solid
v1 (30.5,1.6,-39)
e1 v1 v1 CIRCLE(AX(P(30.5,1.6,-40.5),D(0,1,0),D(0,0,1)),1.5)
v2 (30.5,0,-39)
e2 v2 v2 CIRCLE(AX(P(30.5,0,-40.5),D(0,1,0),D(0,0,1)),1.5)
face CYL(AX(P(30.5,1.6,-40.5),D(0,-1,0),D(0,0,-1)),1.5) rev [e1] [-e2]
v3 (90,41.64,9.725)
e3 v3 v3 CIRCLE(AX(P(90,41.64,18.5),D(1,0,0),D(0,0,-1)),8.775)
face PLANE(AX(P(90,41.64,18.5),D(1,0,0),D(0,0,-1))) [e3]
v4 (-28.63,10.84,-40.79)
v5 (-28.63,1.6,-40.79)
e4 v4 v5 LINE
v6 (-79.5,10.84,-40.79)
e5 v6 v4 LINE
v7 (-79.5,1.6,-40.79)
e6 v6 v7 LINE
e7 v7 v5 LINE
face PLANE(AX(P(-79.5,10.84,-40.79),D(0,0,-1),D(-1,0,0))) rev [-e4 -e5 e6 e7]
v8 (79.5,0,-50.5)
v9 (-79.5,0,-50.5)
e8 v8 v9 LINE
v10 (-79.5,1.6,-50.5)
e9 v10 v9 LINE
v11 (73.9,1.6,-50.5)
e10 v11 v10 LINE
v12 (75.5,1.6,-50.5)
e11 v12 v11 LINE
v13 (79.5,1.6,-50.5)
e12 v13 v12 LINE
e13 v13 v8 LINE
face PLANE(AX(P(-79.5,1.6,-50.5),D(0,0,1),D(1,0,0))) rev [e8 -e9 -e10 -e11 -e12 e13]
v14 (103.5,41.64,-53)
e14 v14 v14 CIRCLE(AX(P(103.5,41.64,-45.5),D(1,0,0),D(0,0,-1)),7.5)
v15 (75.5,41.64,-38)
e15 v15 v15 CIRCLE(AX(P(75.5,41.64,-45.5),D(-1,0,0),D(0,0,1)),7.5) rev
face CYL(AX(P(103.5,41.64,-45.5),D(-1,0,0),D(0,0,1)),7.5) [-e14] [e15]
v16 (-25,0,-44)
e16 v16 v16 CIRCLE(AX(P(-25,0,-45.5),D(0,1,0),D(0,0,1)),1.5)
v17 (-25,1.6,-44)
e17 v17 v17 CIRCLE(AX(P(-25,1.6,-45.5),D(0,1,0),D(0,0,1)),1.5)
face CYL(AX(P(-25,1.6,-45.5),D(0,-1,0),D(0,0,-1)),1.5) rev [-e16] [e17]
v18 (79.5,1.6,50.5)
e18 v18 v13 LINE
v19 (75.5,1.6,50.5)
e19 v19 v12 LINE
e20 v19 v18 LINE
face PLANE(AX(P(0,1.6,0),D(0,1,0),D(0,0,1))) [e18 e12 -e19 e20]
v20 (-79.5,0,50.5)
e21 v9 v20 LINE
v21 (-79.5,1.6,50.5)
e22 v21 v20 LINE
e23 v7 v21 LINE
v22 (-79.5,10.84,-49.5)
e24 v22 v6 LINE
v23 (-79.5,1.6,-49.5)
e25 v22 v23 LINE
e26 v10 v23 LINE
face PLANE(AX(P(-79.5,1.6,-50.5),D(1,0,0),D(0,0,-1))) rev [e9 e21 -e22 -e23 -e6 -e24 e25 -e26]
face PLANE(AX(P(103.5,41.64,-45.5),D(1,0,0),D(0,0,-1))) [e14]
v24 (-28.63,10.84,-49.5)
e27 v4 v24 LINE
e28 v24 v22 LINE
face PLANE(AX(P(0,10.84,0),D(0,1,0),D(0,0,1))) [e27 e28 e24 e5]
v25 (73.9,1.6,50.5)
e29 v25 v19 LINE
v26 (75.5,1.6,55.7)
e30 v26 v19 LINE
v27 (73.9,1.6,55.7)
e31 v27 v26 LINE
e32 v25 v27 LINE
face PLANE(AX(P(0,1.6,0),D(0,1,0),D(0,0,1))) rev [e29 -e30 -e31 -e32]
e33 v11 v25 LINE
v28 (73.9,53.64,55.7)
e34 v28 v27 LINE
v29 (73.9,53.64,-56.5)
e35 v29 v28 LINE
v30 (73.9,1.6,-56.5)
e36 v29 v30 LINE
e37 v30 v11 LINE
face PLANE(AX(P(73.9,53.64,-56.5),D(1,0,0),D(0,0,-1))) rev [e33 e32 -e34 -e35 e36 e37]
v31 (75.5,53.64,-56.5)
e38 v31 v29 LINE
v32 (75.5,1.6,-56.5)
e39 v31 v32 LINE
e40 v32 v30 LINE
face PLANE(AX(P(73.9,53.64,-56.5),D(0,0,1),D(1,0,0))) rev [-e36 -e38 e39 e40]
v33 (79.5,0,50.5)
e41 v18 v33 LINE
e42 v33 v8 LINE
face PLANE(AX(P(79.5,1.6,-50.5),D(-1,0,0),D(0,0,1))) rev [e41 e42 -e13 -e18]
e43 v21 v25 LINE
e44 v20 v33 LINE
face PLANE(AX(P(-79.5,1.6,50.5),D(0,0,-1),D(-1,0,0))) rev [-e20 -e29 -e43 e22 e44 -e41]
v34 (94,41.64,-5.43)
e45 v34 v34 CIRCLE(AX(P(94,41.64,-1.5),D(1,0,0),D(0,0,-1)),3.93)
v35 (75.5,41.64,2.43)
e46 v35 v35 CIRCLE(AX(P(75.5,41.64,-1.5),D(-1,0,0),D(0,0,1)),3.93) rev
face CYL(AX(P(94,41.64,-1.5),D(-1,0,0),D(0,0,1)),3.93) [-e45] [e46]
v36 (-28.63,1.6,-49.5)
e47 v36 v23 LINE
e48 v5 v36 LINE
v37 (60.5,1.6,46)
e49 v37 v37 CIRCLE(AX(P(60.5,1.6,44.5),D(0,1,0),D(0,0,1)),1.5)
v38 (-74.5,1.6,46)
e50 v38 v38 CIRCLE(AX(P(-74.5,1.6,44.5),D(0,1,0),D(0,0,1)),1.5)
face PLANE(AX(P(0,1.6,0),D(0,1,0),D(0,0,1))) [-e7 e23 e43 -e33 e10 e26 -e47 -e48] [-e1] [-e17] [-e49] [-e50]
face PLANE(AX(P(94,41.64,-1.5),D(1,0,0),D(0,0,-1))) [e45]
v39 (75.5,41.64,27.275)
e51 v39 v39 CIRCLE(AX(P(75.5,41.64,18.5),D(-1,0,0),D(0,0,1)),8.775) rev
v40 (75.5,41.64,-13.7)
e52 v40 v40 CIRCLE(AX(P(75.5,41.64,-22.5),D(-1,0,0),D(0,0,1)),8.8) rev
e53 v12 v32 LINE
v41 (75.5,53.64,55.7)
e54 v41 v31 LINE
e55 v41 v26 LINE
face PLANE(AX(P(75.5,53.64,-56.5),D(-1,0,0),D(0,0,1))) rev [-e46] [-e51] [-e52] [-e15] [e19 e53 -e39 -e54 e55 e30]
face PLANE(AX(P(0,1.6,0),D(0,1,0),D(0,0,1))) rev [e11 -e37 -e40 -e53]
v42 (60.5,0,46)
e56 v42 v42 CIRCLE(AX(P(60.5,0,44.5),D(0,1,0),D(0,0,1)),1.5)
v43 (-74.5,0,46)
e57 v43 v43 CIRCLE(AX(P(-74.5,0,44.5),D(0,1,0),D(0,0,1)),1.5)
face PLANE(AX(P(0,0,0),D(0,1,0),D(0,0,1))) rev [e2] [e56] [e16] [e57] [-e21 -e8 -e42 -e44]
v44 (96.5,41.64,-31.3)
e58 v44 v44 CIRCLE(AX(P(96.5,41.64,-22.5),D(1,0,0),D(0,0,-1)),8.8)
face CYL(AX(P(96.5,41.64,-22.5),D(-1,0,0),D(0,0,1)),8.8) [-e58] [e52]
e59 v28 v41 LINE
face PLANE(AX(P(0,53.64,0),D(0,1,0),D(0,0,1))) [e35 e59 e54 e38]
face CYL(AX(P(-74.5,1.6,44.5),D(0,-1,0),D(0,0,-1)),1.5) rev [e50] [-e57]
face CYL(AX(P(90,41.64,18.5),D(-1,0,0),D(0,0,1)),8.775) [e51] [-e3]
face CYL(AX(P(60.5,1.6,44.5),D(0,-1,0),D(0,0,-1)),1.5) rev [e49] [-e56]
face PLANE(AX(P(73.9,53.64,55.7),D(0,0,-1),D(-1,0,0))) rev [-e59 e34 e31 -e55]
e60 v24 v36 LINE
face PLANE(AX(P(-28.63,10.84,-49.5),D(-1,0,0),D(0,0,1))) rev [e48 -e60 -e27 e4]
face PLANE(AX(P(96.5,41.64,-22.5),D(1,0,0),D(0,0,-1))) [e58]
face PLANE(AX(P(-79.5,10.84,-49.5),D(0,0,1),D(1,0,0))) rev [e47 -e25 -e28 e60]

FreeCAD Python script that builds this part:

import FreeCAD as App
import Part
import Sketcher
from FreeCAD import Vector

doc = App.newDocument("Part")
body = doc.addObject("PartDesign::Body", "Body")

sketch1 = body.newObject("Sketcher::SketchObject", "Sketch")
sketch1.AttachmentSupport = (doc.getObject("XZ_Plane"), [""])
sketch1.MapMode = "FlatFace"
sketch1.addGeometry([
    Part.LineSegment(Vector(-79.5, -50.5, 0), Vector(-79.5, 50.5, 0)),
    Part.LineSegment(Vector(-79.5, 50.5, 0), Vector(79.5, 50.5, 0)),
    Part.LineSegment(Vector(79.5, 50.5, 0), Vector(79.5, -50.5, 0)),
    Part.LineSegment(Vector(79.5, -50.5, 0), Vector(-79.5, -50.5, 0)),
    Part.Circle(Vector(-74.5, 44.5, 0), Vector(0, 0, 1), 1.5),
    Part.Circle(Vector(60.5, 44.5, 0), Vector(0, 0, 1), 1.5),
    Part.Circle(Vector(-25, -45.5, 0), Vector(0, 0, 1), 1.5),
    Part.Circle(Vector(30.5, -40.5, 0), Vector(0, 0, 1), 1.5),
], False)
sketch1.addConstraint([
    Sketcher.Constraint("Coincident", 0, 2, 1, 1),
    Sketcher.Constraint("Coincident", 1, 2, 2, 1),
    Sketcher.Constraint("Coincident", 2, 2, 3, 1),
    Sketcher.Constraint("Coincident", 3, 2, 0, 1),
    Sketcher.Constraint("Vertical", 0),
    Sketcher.Constraint("Horizontal", 1),
    Sketcher.Constraint("Vertical", 2),
    Sketcher.Constraint("Horizontal", 3),
    Sketcher.Constraint("Equal", 4, 5),
    Sketcher.Constraint("Equal", 5, 6),
    Sketcher.Constraint("Equal", 6, 7),
    Sketcher.Constraint("Symmetric", 0, 2, 2, 2, -1, 1),
    Sketcher.Constraint("Horizontal", 4, 3, 5, 3),
    Sketcher.Constraint("Diameter", 4, 3.0),
    Sketcher.Constraint("DistanceX", 1, 1, 1, 2, 159.0),
    Sketcher.Constraint("DistanceY", 0, 1, 0, 2, 101.0),
    Sketcher.Constraint("DistanceX", 6, 3, -1, 1, 25.0),
    Sketcher.Constraint("DistanceX", 4, 3, 5, 3, 135.0),
    Sketcher.Constraint("DistanceY", 6, 3, 4, 3, 90.0),
    Sketcher.Constraint("DistanceY", 6, 3, 7, 3, 5.0),
    Sketcher.Constraint("DistanceX", 7, 3, 5, 3, 30.0),
    Sketcher.Constraint("DistanceX", 0, 2, 4, 3, 5.0),
    Sketcher.Constraint("DistanceY", 4, 3, 0, 2, 6.0),
])
pad1 = body.newObject("PartDesign::Pad", "Pad")
pad1.Profile = sketch1
pad1.Length = 1.6
pad1.Reversed = True

sketch2 = body.newObject("Sketcher::SketchObject", "Sketch001")
sketch2.AttachmentSupport = (doc.getObject("XZ_Plane"), [""])
sketch2.MapMode = "FlatFace"
sketch2.AttachmentOffset = App.Placement(Vector(0, 0, -1.6), App.Rotation())
sketch2.addGeometry([
    Part.LineSegment(Vector(-80, -50, 0), Vector(-80, -41, 0)),
    Part.LineSegment(Vector(-80, -41, 0), Vector(-29, -41, 0)),
    Part.LineSegment(Vector(-29, -41, 0), Vector(-29, -50, 0)),
    Part.LineSegment(Vector(-29, -50, 0), Vector(-80, -50, 0)),
], False)
sketch2.addConstraint([
    Sketcher.Constraint("Coincident", 0, 2, 1, 1),
    Sketcher.Constraint("Coincident", 1, 2, 2, 1),
    Sketcher.Constraint("Coincident", 2, 2, 3, 1),
    Sketcher.Constraint("Coincident", 3, 2, 0, 1),
    Sketcher.Constraint("Vertical", 0),
    Sketcher.Constraint("Horizontal", 1),
    Sketcher.Constraint("Vertical", 2),
    Sketcher.Constraint("Horizontal", 3),
    Sketcher.Constraint("DistanceX", 1, 1, 1, 2, 50.87),
    Sketcher.Constraint("DistanceY", 0, 1, 0, 2, 8.71),
    Sketcher.Constraint("DistanceX", 0, 2, -1, 1, 79.5),
    Sketcher.Constraint("DistanceY", 2, 2, -1, 1, 49.5),
])
pad2 = body.newObject("PartDesign::Pad", "Pad001")
pad2.Profile = sketch2
pad2.Length = 9.24
pad2.Reversed = True

sketch3 = body.newObject("Sketcher::SketchObject", "Sketch002")
sketch3.AttachmentSupport = (doc.getObject("XZ_Plane"), [""])
sketch3.MapMode = "FlatFace"
sketch3.AttachmentOffset = App.Placement(Vector(0, 0, -1.6), App.Rotation())
sketch3.addGeometry([
    Part.LineSegment(Vector(73.9, -56.5, 0), Vector(73.9, 55.7, 0)),
    Part.LineSegment(Vector(73.9, 55.7, 0), Vector(75.5, 55.7, 0)),
    Part.LineSegment(Vector(75.5, 55.7, 0), Vector(75.5, -56.5, 0)),
    Part.LineSegment(Vector(75.5, -56.5, 0), Vector(73.9, -56.5, 0)),
], False)
sketch3.addConstraint([
    Sketcher.Constraint("Coincident", 0, 2, 1, 1),
    Sketcher.Constraint("Coincident", 1, 2, 2, 1),
    Sketcher.Constraint("Coincident", 2, 2, 3, 1),
    Sketcher.Constraint("Coincident", 3, 2, 0, 1),
    Sketcher.Constraint("Vertical", 0),
    Sketcher.Constraint("Horizontal", 1),
    Sketcher.Constraint("Vertical", 2),
    Sketcher.Constraint("Horizontal", 3),
    Sketcher.Constraint("DistanceX", 1, 1, 1, 2, 1.6),
    Sketcher.Constraint("DistanceY", 0, 1, 0, 2, 112.2),
    Sketcher.Constraint("DistanceX", -1, 1, 0, 2, 73.9),
    Sketcher.Constraint("DistanceY", -1, 1, 0, 2, 55.7),
])
pad3 = body.newObject("PartDesign::Pad", "Pad002")
pad3.Profile = sketch3
pad3.Length = 52.04
pad3.Reversed = True

sketch4 = body.newObject("Sketcher::SketchObject", "Sketch003")
sketch4.AttachmentSupport = (doc.getObject("YZ_Plane"), [""])
sketch4.MapMode = "FlatFace"
sketch4.AttachmentOffset = App.Placement(Vector(0, 0, 75.5), App.Rotation())
sketch4.addGeometry(Part.Circle(Vector(42, -46, 0), Vector(0, 0, 1), 8), False)
sketch4.addConstraint([
    Sketcher.Constraint("Diameter", 0, 15.0),
    Sketcher.Constraint("DistanceY", 0, 3, -1, 1, 45.5),
    Sketcher.Constraint("DistanceX", -1, 1, 0, 3, 41.64),
])
pad4 = body.newObject("PartDesign::Pad", "Pad003")
pad4.Profile = sketch4
pad4.Length = 28

sketch5 = body.newObject("Sketcher::SketchObject", "Sketch004")
sketch5.AttachmentSupport = (doc.getObject("YZ_Plane"), [""])
sketch5.MapMode = "FlatFace"
sketch5.AttachmentOffset = App.Placement(Vector(0, 0, 75.5), App.Rotation())
sketch5.addGeometry(Part.Circle(Vector(42, -22, 0), Vector(0, 0, 1), 9), False)
sketch5.addConstraint([
    Sketcher.Constraint("Diameter", 0, 17.6),
    Sketcher.Constraint("DistanceY", 0, 3, -1, 1, 22.5),
    Sketcher.Constraint("DistanceX", -1, 1, 0, 3, 41.64),
])
pad5 = body.newObject("PartDesign::Pad", "Pad004")
pad5.Profile = sketch5
pad5.Length = 21

sketch6 = body.newObject("Sketcher::SketchObject", "Sketch005")
sketch6.AttachmentSupport = (doc.getObject("YZ_Plane"), [""])
sketch6.MapMode = "FlatFace"
sketch6.AttachmentOffset = App.Placement(Vector(0, 0, 75.5), App.Rotation())
sketch6.addGeometry(Part.Circle(Vector(41.6, -1.5, 0), Vector(0, 0, 1), 3.9), False)
sketch6.addConstraint([
    Sketcher.Constraint("Diameter", 0, 7.86),
    Sketcher.Constraint("DistanceY", 0, 3, -1, 1, 1.5),
    Sketcher.Constraint("DistanceX", -1, 1, 0, 3, 41.64),
])
pad6 = body.newObject("PartDesign::Pad", "Pad005")
pad6.Profile = sketch6
pad6.Length = 18.5

sketch7 = body.newObject("Sketcher::SketchObject", "Sketch006")
sketch7.AttachmentSupport = (doc.getObject("YZ_Plane"), [""])
sketch7.MapMode = "FlatFace"
sketch7.AttachmentOffset = App.Placement(Vector(0, 0, 75.5), App.Rotation())
sketch7.addGeometry(Part.Circle(Vector(42, 18, 0), Vector(0, 0, 1), 9), False)
sketch7.addConstraint([
    Sketcher.Constraint("Diameter", 0, 17.55),
    Sketcher.Constraint("DistanceY", -1, 1, 0, 3, 18.5),
    Sketcher.Constraint("DistanceX", -1, 1, 0, 3, 41.64),
])
pad7 = body.newObject("PartDesign::Pad", "Pad006")
pad7.Profile = sketch7
pad7.Length = 14.5

doc.recompute()
